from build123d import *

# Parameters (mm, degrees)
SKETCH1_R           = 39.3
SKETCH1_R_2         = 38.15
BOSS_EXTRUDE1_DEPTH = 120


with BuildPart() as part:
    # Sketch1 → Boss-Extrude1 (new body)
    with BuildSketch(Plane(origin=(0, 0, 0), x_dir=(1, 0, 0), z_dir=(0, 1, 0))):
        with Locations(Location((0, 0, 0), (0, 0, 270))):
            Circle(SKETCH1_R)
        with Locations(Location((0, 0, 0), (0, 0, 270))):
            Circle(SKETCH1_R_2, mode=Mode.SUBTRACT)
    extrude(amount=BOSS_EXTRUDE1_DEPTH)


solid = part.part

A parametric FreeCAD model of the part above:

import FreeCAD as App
import Part
import Sketcher

doc = App.newDocument("Part")
body = doc.addObject("PartDesign::Body", "Body")

# Sketch on XZ plane
sketch1 = body.newObject("Sketcher::SketchObject", "Sketch")
sketch1.AttachmentSupport = (doc.getObject("XZ_Plane"), [""])
sketch1.MapMode = "FlatFace"
sketch1.addGeometry(Part.Circle(App.Vector(0, 0, 0), App.Vector(0, 0, 1), 39.3), False)
sketch1.addGeometry(Part.Circle(App.Vector(0, 0, 0), App.Vector(0, 0, 1), 38.15), False)
sketch1.addConstraint(Sketcher.Constraint("Coincident", 0, 3, -1, 1))
sketch1.addConstraint(Sketcher.Constraint("Coincident", 1, 3, -1, 1))
sketch1.addConstraint(Sketcher.Constraint("Diameter", 0, 78.6))
sketch1.addConstraint(Sketcher.Constraint("Diameter", 1, 76.3))
pad1 = body.newObject("PartDesign::Pad", "Pad")
pad1.Profile = sketch1
pad1.Length = 120
pad1.Reversed = True

doc.recompute()
